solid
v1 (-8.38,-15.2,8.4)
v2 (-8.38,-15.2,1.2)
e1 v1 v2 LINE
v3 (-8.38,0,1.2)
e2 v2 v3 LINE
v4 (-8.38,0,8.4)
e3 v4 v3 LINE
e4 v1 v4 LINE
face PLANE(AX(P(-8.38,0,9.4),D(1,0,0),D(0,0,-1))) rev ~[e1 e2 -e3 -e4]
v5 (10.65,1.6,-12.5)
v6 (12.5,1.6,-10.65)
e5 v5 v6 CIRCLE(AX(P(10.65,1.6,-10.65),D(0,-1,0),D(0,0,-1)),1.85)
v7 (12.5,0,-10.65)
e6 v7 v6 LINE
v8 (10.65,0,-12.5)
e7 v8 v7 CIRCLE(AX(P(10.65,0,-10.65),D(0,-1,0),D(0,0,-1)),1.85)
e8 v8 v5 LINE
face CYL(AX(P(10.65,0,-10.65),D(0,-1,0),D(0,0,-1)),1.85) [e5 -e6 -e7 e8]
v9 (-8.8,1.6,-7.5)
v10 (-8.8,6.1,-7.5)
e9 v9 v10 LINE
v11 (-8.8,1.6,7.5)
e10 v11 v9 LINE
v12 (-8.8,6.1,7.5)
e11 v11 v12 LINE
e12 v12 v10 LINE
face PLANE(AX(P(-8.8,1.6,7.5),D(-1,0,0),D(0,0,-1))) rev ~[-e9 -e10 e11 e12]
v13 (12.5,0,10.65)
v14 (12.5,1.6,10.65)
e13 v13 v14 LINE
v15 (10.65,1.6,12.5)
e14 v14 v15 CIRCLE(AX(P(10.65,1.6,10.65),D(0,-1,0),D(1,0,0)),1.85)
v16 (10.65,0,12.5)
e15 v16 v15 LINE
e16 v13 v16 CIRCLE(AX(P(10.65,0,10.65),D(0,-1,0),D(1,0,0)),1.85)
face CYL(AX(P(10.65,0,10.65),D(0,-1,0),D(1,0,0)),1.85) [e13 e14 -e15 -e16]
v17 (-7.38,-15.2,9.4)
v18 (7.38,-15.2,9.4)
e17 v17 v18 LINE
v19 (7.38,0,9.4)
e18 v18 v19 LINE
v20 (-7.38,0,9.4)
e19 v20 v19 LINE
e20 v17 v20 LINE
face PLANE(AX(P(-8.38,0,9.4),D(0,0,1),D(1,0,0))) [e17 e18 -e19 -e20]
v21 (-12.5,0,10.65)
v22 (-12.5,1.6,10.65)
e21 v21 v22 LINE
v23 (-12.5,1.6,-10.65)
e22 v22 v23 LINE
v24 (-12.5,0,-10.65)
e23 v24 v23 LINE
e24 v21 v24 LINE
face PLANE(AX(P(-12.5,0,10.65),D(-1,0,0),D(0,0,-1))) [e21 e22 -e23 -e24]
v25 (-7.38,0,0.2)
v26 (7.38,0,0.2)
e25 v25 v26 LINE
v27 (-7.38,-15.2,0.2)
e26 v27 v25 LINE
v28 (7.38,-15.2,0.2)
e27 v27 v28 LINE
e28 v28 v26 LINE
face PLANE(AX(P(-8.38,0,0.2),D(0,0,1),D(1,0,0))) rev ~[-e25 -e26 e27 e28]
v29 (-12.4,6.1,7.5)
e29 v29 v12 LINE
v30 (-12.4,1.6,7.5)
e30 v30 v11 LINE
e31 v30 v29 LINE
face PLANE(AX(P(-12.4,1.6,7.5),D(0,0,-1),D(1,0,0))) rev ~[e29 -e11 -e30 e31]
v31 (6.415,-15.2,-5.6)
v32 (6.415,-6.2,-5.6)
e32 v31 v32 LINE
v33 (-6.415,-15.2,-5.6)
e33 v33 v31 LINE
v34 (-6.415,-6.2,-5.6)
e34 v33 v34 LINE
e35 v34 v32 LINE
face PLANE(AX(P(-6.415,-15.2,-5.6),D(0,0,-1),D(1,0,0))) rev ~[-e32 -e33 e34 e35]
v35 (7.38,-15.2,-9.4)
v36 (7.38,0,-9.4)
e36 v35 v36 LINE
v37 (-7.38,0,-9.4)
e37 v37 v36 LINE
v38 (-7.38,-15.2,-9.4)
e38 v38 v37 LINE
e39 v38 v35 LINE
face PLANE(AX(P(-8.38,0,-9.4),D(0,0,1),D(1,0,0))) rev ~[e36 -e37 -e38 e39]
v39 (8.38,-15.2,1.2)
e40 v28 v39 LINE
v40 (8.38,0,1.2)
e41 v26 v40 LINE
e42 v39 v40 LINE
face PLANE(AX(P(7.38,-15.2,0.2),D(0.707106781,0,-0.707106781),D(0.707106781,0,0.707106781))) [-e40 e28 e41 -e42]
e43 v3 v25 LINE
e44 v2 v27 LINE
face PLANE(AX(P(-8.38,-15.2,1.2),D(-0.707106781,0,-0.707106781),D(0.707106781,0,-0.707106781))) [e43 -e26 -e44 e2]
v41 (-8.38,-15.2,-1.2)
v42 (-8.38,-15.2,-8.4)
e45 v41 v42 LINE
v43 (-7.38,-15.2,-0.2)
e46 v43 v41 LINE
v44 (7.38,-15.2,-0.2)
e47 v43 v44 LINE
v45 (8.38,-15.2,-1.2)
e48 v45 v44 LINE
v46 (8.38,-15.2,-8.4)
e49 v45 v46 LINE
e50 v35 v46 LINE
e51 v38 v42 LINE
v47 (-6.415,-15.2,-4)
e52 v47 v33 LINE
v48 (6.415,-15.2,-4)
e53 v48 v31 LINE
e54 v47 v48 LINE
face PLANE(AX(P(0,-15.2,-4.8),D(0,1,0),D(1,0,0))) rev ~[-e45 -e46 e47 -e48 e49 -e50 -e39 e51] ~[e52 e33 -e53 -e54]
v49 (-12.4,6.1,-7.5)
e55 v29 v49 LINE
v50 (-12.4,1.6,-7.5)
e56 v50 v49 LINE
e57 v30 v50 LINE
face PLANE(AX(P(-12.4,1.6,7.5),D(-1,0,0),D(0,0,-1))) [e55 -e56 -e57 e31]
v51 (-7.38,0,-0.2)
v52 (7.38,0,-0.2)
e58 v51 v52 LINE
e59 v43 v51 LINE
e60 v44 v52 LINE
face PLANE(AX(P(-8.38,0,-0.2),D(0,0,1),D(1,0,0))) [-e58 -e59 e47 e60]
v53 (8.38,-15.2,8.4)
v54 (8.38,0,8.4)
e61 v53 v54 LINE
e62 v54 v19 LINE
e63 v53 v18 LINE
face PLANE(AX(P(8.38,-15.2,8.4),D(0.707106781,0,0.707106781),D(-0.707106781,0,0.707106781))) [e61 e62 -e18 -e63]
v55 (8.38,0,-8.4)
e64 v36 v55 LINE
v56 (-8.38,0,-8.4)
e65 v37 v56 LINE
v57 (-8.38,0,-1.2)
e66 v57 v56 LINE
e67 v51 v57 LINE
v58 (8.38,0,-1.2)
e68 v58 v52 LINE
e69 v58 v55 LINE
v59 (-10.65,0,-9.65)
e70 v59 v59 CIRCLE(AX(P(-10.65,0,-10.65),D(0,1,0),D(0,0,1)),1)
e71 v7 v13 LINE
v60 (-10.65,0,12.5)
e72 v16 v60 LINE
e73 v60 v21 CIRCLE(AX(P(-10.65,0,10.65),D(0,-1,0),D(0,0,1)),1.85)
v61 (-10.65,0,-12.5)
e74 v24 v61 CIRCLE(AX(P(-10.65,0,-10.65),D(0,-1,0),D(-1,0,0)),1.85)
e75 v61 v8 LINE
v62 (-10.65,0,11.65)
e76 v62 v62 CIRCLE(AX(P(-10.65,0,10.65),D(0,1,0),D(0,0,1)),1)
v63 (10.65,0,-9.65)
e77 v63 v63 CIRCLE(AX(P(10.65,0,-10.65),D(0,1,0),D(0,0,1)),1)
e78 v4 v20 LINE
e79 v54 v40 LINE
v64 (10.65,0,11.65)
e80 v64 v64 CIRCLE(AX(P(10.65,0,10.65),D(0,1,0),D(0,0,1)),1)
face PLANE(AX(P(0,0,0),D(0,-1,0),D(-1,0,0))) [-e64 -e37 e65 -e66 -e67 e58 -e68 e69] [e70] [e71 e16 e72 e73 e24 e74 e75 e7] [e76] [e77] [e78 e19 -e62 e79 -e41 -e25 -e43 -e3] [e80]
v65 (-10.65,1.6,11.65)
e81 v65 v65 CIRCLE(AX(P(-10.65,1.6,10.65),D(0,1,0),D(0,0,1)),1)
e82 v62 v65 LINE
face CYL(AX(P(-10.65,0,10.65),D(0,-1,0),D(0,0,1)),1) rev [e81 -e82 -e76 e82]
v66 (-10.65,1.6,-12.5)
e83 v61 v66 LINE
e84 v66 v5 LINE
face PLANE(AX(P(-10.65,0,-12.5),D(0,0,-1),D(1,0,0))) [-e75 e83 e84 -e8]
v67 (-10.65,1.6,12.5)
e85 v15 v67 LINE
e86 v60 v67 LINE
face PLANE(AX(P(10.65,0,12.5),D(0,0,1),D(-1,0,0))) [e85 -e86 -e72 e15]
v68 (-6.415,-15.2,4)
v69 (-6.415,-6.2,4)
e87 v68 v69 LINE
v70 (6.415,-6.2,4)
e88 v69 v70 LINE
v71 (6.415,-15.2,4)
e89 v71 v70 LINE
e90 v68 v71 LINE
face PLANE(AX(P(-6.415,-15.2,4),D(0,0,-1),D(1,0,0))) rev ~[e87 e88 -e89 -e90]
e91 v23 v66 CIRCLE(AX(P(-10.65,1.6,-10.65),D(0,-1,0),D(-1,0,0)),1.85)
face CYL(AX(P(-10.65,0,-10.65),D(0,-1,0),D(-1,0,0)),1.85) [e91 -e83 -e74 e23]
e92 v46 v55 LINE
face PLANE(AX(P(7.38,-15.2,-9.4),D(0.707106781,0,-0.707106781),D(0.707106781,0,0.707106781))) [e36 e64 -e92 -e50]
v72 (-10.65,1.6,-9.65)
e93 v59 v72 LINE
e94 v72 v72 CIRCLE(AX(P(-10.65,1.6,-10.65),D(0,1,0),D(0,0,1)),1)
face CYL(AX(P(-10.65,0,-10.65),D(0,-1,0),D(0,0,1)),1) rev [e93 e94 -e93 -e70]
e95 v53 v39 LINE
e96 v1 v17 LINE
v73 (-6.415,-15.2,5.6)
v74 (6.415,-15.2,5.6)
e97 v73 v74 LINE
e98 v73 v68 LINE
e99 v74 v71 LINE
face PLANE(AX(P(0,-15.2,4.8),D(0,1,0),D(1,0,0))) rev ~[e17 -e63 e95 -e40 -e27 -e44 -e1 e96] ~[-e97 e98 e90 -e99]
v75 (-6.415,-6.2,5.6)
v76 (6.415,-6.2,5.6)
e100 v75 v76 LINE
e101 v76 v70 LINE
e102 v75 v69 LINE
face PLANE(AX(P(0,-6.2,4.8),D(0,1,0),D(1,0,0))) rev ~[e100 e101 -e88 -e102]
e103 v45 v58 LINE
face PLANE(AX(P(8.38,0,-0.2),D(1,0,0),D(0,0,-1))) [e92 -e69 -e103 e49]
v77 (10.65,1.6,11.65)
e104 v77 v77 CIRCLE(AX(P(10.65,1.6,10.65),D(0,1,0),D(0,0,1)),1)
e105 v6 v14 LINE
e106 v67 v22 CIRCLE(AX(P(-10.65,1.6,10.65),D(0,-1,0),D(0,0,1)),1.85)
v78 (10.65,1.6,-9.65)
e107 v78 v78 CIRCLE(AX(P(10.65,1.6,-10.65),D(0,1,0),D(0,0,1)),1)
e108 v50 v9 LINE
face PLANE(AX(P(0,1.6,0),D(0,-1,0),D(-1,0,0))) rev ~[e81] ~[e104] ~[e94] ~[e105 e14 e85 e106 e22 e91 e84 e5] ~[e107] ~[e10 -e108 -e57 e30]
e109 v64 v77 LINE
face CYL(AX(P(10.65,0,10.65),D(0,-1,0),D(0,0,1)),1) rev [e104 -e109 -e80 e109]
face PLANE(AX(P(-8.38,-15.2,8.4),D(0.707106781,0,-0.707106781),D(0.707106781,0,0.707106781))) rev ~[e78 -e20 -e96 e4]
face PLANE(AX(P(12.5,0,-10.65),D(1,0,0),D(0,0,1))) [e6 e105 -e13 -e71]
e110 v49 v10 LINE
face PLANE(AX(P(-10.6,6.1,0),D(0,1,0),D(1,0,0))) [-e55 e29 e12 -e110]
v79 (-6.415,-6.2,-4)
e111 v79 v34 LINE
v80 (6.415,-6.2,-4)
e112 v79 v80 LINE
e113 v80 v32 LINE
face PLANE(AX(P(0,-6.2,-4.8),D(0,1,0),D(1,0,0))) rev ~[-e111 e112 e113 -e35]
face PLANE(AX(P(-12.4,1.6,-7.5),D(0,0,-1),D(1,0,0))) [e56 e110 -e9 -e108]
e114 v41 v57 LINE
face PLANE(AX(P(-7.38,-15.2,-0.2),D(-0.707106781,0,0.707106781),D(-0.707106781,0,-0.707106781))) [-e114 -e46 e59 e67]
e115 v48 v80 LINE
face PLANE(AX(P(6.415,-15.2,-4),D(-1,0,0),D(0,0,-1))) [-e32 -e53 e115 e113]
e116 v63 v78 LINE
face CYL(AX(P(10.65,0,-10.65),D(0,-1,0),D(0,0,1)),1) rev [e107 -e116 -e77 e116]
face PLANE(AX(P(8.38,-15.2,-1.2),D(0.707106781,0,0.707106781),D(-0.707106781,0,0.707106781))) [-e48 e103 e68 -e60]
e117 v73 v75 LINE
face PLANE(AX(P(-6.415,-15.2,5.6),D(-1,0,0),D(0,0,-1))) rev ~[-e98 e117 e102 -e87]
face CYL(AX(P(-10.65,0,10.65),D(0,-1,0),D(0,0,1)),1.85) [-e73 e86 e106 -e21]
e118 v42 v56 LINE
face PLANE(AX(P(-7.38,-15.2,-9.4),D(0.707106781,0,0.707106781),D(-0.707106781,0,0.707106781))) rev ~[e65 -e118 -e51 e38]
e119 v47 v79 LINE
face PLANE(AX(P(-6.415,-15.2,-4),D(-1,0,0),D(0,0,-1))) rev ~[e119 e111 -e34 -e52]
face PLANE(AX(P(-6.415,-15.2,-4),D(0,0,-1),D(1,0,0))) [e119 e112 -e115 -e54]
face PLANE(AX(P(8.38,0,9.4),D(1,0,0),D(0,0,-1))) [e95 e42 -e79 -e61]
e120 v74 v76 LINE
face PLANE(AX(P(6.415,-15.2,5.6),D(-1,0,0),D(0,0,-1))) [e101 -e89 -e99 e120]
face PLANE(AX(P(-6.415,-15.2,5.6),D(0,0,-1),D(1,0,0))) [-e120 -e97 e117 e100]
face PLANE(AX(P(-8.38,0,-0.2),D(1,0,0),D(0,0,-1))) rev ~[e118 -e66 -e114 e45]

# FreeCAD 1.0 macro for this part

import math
import FreeCAD as App
import Part
import Sketcher
from FreeCAD import Vector


def add_polygon(sketch, points):
    """Adds a closed chain of lines whose ends are joined by coincident constraints."""
    first, n = sketch.GeometryCount, len(points)
    for a, b in zip(points, points[1:] + points[:1]):
        sketch.addGeometry(Part.LineSegment(App.Vector(*a, 0), App.Vector(*b, 0)), False)
    for i in range(n):
        sketch.addConstraint(Sketcher.Constraint("Coincident", first + i, 2, first + (i + 1) % n, 1))

doc = App.newDocument("Part")
body = doc.addObject("PartDesign::Body", "Body")

# Sketch on XZ plane
sketch1 = body.newObject("Sketcher::SketchObject", "Sketch")
sketch1.AttachmentSupport = (doc.getObject("XZ_Plane"), [""])
sketch1.MapMode = "FlatFace"
sketch1.addGeometry(Part.LineSegment(Vector(10.65, -12.5, 0), Vector(-10.65, -12.5, 0)), False)
sketch1.addGeometry(Part.ArcOfCircle(Part.Circle(Vector(-10.65, -10.65, 0), Vector(0, 0, 1), 1.85), math.radians(-180), math.radians(-90)), False)
sketch1.addGeometry(Part.LineSegment(Vector(-12.5, -10.65, 0), Vector(-12.5, 10.65, 0)), False)
sketch1.addGeometry(Part.ArcOfCircle(Part.Circle(Vector(-10.65, 10.65, 0), Vector(0, 0, 1), 1.85), math.radians(90), math.radians(180)), False)
sketch1.addGeometry(Part.LineSegment(Vector(-10.65, 12.5, 0), Vector(10.65, 12.5, 0)), False)
sketch1.addGeometry(Part.ArcOfCircle(Part.Circle(Vector(10.65, 10.65, 0), Vector(0, 0, 1), 1.85), math.radians(0), math.radians(90)), False)
sketch1.addGeometry(Part.LineSegment(Vector(12.5, 10.65, 0), Vector(12.5, -10.65, 0)), False)
sketch1.addGeometry(Part.ArcOfCircle(Part.Circle(Vector(10.65, -10.65, 0), Vector(0, 0, 1), 1.85), math.radians(-90), math.radians(0)), False)
sketch1.addGeometry(Part.Circle(Vector(10.65, 10.65, 0), Vector(0, 0, 1), 1), False)
sketch1.addGeometry(Part.Circle(Vector(-10.65, 10.65, 0), Vector(0, 0, 1), 1), False)
sketch1.addGeometry(Part.Circle(Vector(10.65, -10.65, 0), Vector(0, 0, 1), 1), False)
sketch1.addGeometry(Part.Circle(Vector(-10.65, -10.65, 0), Vector(0, 0, 1), 1), False)
sketch1.addConstraint(Sketcher.Constraint("Tangent", 0, 2, 1, 2))
sketch1.addConstraint(Sketcher.Constraint("Tangent", 1, 1, 2, 1))
sketch1.addConstraint(Sketcher.Constraint("Tangent", 2, 2, 3, 2))
sketch1.addConstraint(Sketcher.Constraint("Tangent", 3, 1, 4, 1))
sketch1.addConstraint(Sketcher.Constraint("Tangent", 4, 2, 5, 2))
sketch1.addConstraint(Sketcher.Constraint("Tangent", 5, 1, 6, 1))
sketch1.addConstraint(Sketcher.Constraint("Tangent", 6, 2, 7, 2))
sketch1.addConstraint(Sketcher.Constraint("Tangent", 7, 1, 0, 1))
sketch1.addConstraint(Sketcher.Constraint("Horizontal", 0))
sketch1.addConstraint(Sketcher.Constraint("Vertical", 2))
sketch1.addConstraint(Sketcher.Constraint("Horizontal", 4))
sketch1.addConstraint(Sketcher.Constraint("Vertical", 6))
sketch1.addConstraint(Sketcher.Constraint("Coincident", 8, 3, 5, 3))
sketch1.addConstraint(Sketcher.Constraint("Coincident", 9, 3, 3, 3))
sketch1.addConstraint(Sketcher.Constraint("Coincident", 10, 3, 7, 3))
sketch1.addConstraint(Sketcher.Constraint("Coincident", 11, 3, 1, 3))
sketch1.addConstraint(Sketcher.Constraint("Equal", 1, 3))
sketch1.addConstraint(Sketcher.Constraint("Equal", 3, 5))
sketch1.addConstraint(Sketcher.Constraint("Equal", 5, 7))
sketch1.addConstraint(Sketcher.Constraint("Equal", 8, 9))
sketch1.addConstraint(Sketcher.Constraint("Equal", 9, 10))
sketch1.addConstraint(Sketcher.Constraint("Equal", 10, 11))
sketch1.addConstraint(Sketcher.Constraint("Symmetric", 1, 3, 5, 3, -1, 1))
sketch1.addConstraint(Sketcher.Constraint("Equal", 4, 2))
sketch1.addConstraint(Sketcher.Constraint("Diameter", 8, 2.0))
sketch1.addConstraint(Sketcher.Constraint("Radius", 1, 1.85))
sketch1.addConstraint(Sketcher.Constraint("DistanceX", 0, 2, 0, 1, 21.3))
pad1 = body.newObject("PartDesign::Pad", "Pad")
pad1.Profile = sketch1
pad1.Length = 1.6
pad1.Reversed = True

# Sketch on XZ plane
sketch2 = body.newObject("Sketcher::SketchObject", "Sketch001")
sketch2.AttachmentSupport = (doc.getObject("XZ_Plane"), [""])
sketch2.MapMode = "FlatFace"
add_polygon(sketch2, [(-8.38, -9.4), (-8.38, -0.2), (8.38, -0.2), (8.38, -9.4)])  # lines 0-3
add_polygon(sketch2, [(-8.38, 0.2), (-8.38, 9.4), (8.38, 9.4), (8.38, 0.2)])  # lines 4-7
sketch2.addConstraint(Sketcher.Constraint("Vertical", 0))
sketch2.addConstraint(Sketcher.Constraint("Horizontal", 1))
sketch2.addConstraint(Sketcher.Constraint("Vertical", 2))
sketch2.addConstraint(Sketcher.Constraint("Horizontal", 3))
sketch2.addConstraint(Sketcher.Constraint("Vertical", 4))
sketch2.addConstraint(Sketcher.Constraint("Horizontal", 5))
sketch2.addConstraint(Sketcher.Constraint("Vertical", 6))
sketch2.addConstraint(Sketcher.Constraint("Horizontal", 7))
sketch2.addConstraint(Sketcher.Constraint("Symmetric", 2, 2, 4, 2, -1, 1))
sketch2.addConstraint(Sketcher.Constraint("Symmetric", 0, 2, 6, 2, -1, 1))
sketch2.addConstraint(Sketcher.Constraint("Vertical", 3, 2, 4, 2))
sketch2.addConstraint(Sketcher.Constraint("DistanceY", 0, 1, 0, 2, 9.2))
sketch2.addConstraint(Sketcher.Constraint("DistanceX", 1, 1, 1, 2, 16.76))
sketch2.addConstraint(Sketcher.Constraint("DistanceY", 0, 2, -1, 1, 0.2))
pad2 = body.newObject("PartDesign::Pad", "Pad001")
pad2.Profile = sketch2
pad2.Length = 15.2

# Sketch on XZ plane
sketch3 = body.newObject("Sketcher::SketchObject", "Sketch002")
sketch3.AttachmentSupport = (doc.getObject("XZ_Plane"), [""])
sketch3.MapMode = "FlatFace"
sketch3.AttachmentOffset = App.Placement(Vector(0, 0, 15.2), App.Rotation())
add_polygon(sketch3, [(-6.415, 4), (-6.415, 5.6), (6.415, 5.6), (6.415, 4)])  # lines 0-3
add_polygon(sketch3, [(-6.415, -5.6), (-6.415, -4), (6.415, -4), (6.415, -5.6)])  # lines 4-7
sketch3.addConstraint(Sketcher.Constraint("Vertical", 0))
sketch3.addConstraint(Sketcher.Constraint("Horizontal", 1))
sketch3.addConstraint(Sketcher.Constraint("Vertical", 2))
sketch3.addConstraint(Sketcher.Constraint("Horizontal", 3))
sketch3.addConstraint(Sketcher.Constraint("Vertical", 4))
sketch3.addConstraint(Sketcher.Constraint("Horizontal", 5))
sketch3.addConstraint(Sketcher.Constraint("Vertical", 6))
sketch3.addConstraint(Sketcher.Constraint("Horizontal", 7))
sketch3.addConstraint(Sketcher.Constraint("Symmetric", 2, 2, 4, 2, -1, 1))
sketch3.addConstraint(Sketcher.Constraint("Symmetric", 0, 2, 6, 2, -1, 1))
sketch3.addConstraint(Sketcher.Constraint("Vertical", 3, 2, 4, 2))
sketch3.addConstraint(Sketcher.Constraint("DistanceY", 0, 1, 0, 2, 1.6))
sketch3.addConstraint(Sketcher.Constraint("DistanceY", -1, 1, 2, 2, 4.0))
sketch3.addConstraint(Sketcher.Constraint("DistanceX", 1, 1, 1, 2, 12.83))
pocket1 = body.newObject("PartDesign::Pocket", "Pocket")
pocket1.Profile = sketch3
pocket1.Length = 9

# Sketch on XZ plane
sketch4 = body.newObject("Sketcher::SketchObject", "Sketch003")
sketch4.AttachmentSupport = (doc.getObject("XZ_Plane"), [""])
sketch4.MapMode = "FlatFace"
sketch4.AttachmentOffset = App.Placement(Vector(0, 0, 15.2), App.Rotation())
add_polygon(sketch4, [(-8.38, 8.4), (-8.38, 9.4), (-7.38, 9.4)])  # lines 0-2
add_polygon(sketch4, [(7.38, 9.4), (8.38, 9.4), (8.38, 8.4)])  # lines 3-5
add_polygon(sketch4, [(-8.38, 0.2), (-8.38, 1.2), (-7.38, 0.2)])  # lines 6-8
add_polygon(sketch4, [(8.38, 0.2), (7.38, 0.2), (8.38, 1.2)])  # lines 9-11
add_polygon(sketch4, [(-8.38, -0.2), (-7.38, -0.2), (-8.38, -1.2)])  # lines 12-14
add_polygon(sketch4, [(-7.38, -9.4), (-8.38, -9.4), (-8.38, -8.4)])  # lines 15-17
add_polygon(sketch4, [(8.38, -9.4), (7.38, -9.4), (8.38, -8.4)])  # lines 18-20
add_polygon(sketch4, [(7.38, -0.2), (8.38, -0.2), (8.38, -1.2)])  # lines 21-23
sketch4.addConstraint(Sketcher.Constraint("Vertical", 0))
sketch4.addConstraint(Sketcher.Constraint("Horizontal", 1))
sketch4.addConstraint(Sketcher.Constraint("Horizontal", 3))
sketch4.addConstraint(Sketcher.Constraint("Vertical", 4))
sketch4.addConstraint(Sketcher.Constraint("Vertical", 6))
sketch4.addConstraint(Sketcher.Constraint("Horizontal", 8))
sketch4.addConstraint(Sketcher.Constraint("Horizontal", 9))
sketch4.addConstraint(Sketcher.Constraint("Vertical", 11))
sketch4.addConstraint(Sketcher.Constraint("Horizontal", 12))
sketch4.addConstraint(Sketcher.Constraint("Vertical", 14))
sketch4.addConstraint(Sketcher.Constraint("Horizontal", 15))
sketch4.addConstraint(Sketcher.Constraint("Vertical", 16))
sketch4.addConstraint(Sketcher.Constraint("Horizontal", 18))
sketch4.addConstraint(Sketcher.Constraint("Vertical", 20))
sketch4.addConstraint(Sketcher.Constraint("Horizontal", 21))
sketch4.addConstraint(Sketcher.Constraint("Vertical", 22))
sketch4.addConstraint(Sketcher.Constraint("Symmetric", 9, 2, 12, 2, -1, 1))
sketch4.addConstraint(Sketcher.Constraint("Symmetric", 10, 2, 13, 2, -1, 1))
sketch4.addConstraint(Sketcher.Constraint("Symmetric", 3, 2, 15, 2, -1, 1))
sketch4.addConstraint(Sketcher.Constraint("Symmetric", 1, 2, 18, 2, -1, 1))
sketch4.addConstraint(Sketcher.Constraint("Symmetric", 2, 2, 19, 2, -1, 1))
sketch4.addConstraint(Sketcher.Constraint("Symmetric", 8, 2, 21, 2, -1, 1))
sketch4.addConstraint(Sketcher.Constraint("Symmetric", 0, 2, 3, 2, -2))
sketch4.addConstraint(Sketcher.Constraint("Symmetric", 7, 2, 9, 2, -2))
sketch4.addConstraint(Sketcher.Constraint("Symmetric", 6, 2, 10, 2, -2))
sketch4.addConstraint(Sketcher.Constraint("Perpendicular", 2, 5))
sketch4.addConstraint(Sketcher.Constraint("Parallel", 5, 7))
sketch4.addConstraint(Sketcher.Constraint("Perpendicular", 7, 10))
sketch4.addConstraint(Sketcher.Constraint("Perpendicular", 13, 17))
sketch4.addConstraint(Sketcher.Constraint("Perpendicular", 19, 23))
sketch4.addConstraint(Sketcher.Constraint("Horizontal", 2, 2, 4, 2))
sketch4.addConstraint(Sketcher.Constraint("Horizontal", 16, 2, 19, 2))
sketch4.addConstraint(Sketcher.Constraint("Horizontal", 13, 2, 22, 2))
sketch4.addConstraint(Sketcher.Constraint("Vertical", 2, 2, 6, 2))
sketch4.addConstraint(Sketcher.Constraint("Vertical", 1, 2, 7, 2))
sketch4.addConstraint(Sketcher.Constraint("DistanceX", 1, 1, 1, 2, 1.0))
sketch4.addConstraint(Sketcher.Constraint("DistanceY", -1, 1, 0, 2, 9.4))
sketch4.addConstraint(Sketcher.Constraint("DistanceY", -1, 1, 6, 2, 1.2))
sketch4.addConstraint(Sketcher.Constraint("DistanceX", 0, 2, -1, 1, 8.38))
pocket2 = body.newObject("PartDesign::Pocket", "Pocket001")
pocket2.Profile = sketch4
pocket2.Length = 15.2

# Sketch on XZ plane
sketch5 = body.newObject("Sketcher::SketchObject", "Sketch004")
sketch5.AttachmentSupport = (doc.getObject("XZ_Plane"), [""])
sketch5.MapMode = "FlatFace"
sketch5.AttachmentOffset = App.Placement(Vector(0, 0, -1.6), App.Rotation())
add_polygon(sketch5, [(-12.4, -7.5), (-12.4, 7.5), (-8.8, 7.5), (-8.8, -7.5)])  # lines 0-3
sketch5.addConstraint(Sketcher.Constraint("Vertical", 0))
sketch5.addConstraint(Sketcher.Constraint("Horizontal", 1))
sketch5.addConstraint(Sketcher.Constraint("Vertical", 2))
sketch5.addConstraint(Sketcher.Constraint("Horizontal", 3))
sketch5.addConstraint(Sketcher.Constraint("DistanceY", 0, 1, 0, 2, 15.0))
sketch5.addConstraint(Sketcher.Constraint("DistanceX", 1, 1, 1, 2, 3.6))
sketch5.addConstraint(Sketcher.Constraint("DistanceX", 0, 2, -1, 1, 12.4))
sketch5.addConstraint(Sketcher.Constraint("DistanceY", -1, 1, 0, 2, 7.5))
pad3 = body.newObject("PartDesign::Pad", "Pad002")
pad3.Profile = sketch5
pad3.Length = 4.5
pad3.Reversed = True

doc.recompute()
